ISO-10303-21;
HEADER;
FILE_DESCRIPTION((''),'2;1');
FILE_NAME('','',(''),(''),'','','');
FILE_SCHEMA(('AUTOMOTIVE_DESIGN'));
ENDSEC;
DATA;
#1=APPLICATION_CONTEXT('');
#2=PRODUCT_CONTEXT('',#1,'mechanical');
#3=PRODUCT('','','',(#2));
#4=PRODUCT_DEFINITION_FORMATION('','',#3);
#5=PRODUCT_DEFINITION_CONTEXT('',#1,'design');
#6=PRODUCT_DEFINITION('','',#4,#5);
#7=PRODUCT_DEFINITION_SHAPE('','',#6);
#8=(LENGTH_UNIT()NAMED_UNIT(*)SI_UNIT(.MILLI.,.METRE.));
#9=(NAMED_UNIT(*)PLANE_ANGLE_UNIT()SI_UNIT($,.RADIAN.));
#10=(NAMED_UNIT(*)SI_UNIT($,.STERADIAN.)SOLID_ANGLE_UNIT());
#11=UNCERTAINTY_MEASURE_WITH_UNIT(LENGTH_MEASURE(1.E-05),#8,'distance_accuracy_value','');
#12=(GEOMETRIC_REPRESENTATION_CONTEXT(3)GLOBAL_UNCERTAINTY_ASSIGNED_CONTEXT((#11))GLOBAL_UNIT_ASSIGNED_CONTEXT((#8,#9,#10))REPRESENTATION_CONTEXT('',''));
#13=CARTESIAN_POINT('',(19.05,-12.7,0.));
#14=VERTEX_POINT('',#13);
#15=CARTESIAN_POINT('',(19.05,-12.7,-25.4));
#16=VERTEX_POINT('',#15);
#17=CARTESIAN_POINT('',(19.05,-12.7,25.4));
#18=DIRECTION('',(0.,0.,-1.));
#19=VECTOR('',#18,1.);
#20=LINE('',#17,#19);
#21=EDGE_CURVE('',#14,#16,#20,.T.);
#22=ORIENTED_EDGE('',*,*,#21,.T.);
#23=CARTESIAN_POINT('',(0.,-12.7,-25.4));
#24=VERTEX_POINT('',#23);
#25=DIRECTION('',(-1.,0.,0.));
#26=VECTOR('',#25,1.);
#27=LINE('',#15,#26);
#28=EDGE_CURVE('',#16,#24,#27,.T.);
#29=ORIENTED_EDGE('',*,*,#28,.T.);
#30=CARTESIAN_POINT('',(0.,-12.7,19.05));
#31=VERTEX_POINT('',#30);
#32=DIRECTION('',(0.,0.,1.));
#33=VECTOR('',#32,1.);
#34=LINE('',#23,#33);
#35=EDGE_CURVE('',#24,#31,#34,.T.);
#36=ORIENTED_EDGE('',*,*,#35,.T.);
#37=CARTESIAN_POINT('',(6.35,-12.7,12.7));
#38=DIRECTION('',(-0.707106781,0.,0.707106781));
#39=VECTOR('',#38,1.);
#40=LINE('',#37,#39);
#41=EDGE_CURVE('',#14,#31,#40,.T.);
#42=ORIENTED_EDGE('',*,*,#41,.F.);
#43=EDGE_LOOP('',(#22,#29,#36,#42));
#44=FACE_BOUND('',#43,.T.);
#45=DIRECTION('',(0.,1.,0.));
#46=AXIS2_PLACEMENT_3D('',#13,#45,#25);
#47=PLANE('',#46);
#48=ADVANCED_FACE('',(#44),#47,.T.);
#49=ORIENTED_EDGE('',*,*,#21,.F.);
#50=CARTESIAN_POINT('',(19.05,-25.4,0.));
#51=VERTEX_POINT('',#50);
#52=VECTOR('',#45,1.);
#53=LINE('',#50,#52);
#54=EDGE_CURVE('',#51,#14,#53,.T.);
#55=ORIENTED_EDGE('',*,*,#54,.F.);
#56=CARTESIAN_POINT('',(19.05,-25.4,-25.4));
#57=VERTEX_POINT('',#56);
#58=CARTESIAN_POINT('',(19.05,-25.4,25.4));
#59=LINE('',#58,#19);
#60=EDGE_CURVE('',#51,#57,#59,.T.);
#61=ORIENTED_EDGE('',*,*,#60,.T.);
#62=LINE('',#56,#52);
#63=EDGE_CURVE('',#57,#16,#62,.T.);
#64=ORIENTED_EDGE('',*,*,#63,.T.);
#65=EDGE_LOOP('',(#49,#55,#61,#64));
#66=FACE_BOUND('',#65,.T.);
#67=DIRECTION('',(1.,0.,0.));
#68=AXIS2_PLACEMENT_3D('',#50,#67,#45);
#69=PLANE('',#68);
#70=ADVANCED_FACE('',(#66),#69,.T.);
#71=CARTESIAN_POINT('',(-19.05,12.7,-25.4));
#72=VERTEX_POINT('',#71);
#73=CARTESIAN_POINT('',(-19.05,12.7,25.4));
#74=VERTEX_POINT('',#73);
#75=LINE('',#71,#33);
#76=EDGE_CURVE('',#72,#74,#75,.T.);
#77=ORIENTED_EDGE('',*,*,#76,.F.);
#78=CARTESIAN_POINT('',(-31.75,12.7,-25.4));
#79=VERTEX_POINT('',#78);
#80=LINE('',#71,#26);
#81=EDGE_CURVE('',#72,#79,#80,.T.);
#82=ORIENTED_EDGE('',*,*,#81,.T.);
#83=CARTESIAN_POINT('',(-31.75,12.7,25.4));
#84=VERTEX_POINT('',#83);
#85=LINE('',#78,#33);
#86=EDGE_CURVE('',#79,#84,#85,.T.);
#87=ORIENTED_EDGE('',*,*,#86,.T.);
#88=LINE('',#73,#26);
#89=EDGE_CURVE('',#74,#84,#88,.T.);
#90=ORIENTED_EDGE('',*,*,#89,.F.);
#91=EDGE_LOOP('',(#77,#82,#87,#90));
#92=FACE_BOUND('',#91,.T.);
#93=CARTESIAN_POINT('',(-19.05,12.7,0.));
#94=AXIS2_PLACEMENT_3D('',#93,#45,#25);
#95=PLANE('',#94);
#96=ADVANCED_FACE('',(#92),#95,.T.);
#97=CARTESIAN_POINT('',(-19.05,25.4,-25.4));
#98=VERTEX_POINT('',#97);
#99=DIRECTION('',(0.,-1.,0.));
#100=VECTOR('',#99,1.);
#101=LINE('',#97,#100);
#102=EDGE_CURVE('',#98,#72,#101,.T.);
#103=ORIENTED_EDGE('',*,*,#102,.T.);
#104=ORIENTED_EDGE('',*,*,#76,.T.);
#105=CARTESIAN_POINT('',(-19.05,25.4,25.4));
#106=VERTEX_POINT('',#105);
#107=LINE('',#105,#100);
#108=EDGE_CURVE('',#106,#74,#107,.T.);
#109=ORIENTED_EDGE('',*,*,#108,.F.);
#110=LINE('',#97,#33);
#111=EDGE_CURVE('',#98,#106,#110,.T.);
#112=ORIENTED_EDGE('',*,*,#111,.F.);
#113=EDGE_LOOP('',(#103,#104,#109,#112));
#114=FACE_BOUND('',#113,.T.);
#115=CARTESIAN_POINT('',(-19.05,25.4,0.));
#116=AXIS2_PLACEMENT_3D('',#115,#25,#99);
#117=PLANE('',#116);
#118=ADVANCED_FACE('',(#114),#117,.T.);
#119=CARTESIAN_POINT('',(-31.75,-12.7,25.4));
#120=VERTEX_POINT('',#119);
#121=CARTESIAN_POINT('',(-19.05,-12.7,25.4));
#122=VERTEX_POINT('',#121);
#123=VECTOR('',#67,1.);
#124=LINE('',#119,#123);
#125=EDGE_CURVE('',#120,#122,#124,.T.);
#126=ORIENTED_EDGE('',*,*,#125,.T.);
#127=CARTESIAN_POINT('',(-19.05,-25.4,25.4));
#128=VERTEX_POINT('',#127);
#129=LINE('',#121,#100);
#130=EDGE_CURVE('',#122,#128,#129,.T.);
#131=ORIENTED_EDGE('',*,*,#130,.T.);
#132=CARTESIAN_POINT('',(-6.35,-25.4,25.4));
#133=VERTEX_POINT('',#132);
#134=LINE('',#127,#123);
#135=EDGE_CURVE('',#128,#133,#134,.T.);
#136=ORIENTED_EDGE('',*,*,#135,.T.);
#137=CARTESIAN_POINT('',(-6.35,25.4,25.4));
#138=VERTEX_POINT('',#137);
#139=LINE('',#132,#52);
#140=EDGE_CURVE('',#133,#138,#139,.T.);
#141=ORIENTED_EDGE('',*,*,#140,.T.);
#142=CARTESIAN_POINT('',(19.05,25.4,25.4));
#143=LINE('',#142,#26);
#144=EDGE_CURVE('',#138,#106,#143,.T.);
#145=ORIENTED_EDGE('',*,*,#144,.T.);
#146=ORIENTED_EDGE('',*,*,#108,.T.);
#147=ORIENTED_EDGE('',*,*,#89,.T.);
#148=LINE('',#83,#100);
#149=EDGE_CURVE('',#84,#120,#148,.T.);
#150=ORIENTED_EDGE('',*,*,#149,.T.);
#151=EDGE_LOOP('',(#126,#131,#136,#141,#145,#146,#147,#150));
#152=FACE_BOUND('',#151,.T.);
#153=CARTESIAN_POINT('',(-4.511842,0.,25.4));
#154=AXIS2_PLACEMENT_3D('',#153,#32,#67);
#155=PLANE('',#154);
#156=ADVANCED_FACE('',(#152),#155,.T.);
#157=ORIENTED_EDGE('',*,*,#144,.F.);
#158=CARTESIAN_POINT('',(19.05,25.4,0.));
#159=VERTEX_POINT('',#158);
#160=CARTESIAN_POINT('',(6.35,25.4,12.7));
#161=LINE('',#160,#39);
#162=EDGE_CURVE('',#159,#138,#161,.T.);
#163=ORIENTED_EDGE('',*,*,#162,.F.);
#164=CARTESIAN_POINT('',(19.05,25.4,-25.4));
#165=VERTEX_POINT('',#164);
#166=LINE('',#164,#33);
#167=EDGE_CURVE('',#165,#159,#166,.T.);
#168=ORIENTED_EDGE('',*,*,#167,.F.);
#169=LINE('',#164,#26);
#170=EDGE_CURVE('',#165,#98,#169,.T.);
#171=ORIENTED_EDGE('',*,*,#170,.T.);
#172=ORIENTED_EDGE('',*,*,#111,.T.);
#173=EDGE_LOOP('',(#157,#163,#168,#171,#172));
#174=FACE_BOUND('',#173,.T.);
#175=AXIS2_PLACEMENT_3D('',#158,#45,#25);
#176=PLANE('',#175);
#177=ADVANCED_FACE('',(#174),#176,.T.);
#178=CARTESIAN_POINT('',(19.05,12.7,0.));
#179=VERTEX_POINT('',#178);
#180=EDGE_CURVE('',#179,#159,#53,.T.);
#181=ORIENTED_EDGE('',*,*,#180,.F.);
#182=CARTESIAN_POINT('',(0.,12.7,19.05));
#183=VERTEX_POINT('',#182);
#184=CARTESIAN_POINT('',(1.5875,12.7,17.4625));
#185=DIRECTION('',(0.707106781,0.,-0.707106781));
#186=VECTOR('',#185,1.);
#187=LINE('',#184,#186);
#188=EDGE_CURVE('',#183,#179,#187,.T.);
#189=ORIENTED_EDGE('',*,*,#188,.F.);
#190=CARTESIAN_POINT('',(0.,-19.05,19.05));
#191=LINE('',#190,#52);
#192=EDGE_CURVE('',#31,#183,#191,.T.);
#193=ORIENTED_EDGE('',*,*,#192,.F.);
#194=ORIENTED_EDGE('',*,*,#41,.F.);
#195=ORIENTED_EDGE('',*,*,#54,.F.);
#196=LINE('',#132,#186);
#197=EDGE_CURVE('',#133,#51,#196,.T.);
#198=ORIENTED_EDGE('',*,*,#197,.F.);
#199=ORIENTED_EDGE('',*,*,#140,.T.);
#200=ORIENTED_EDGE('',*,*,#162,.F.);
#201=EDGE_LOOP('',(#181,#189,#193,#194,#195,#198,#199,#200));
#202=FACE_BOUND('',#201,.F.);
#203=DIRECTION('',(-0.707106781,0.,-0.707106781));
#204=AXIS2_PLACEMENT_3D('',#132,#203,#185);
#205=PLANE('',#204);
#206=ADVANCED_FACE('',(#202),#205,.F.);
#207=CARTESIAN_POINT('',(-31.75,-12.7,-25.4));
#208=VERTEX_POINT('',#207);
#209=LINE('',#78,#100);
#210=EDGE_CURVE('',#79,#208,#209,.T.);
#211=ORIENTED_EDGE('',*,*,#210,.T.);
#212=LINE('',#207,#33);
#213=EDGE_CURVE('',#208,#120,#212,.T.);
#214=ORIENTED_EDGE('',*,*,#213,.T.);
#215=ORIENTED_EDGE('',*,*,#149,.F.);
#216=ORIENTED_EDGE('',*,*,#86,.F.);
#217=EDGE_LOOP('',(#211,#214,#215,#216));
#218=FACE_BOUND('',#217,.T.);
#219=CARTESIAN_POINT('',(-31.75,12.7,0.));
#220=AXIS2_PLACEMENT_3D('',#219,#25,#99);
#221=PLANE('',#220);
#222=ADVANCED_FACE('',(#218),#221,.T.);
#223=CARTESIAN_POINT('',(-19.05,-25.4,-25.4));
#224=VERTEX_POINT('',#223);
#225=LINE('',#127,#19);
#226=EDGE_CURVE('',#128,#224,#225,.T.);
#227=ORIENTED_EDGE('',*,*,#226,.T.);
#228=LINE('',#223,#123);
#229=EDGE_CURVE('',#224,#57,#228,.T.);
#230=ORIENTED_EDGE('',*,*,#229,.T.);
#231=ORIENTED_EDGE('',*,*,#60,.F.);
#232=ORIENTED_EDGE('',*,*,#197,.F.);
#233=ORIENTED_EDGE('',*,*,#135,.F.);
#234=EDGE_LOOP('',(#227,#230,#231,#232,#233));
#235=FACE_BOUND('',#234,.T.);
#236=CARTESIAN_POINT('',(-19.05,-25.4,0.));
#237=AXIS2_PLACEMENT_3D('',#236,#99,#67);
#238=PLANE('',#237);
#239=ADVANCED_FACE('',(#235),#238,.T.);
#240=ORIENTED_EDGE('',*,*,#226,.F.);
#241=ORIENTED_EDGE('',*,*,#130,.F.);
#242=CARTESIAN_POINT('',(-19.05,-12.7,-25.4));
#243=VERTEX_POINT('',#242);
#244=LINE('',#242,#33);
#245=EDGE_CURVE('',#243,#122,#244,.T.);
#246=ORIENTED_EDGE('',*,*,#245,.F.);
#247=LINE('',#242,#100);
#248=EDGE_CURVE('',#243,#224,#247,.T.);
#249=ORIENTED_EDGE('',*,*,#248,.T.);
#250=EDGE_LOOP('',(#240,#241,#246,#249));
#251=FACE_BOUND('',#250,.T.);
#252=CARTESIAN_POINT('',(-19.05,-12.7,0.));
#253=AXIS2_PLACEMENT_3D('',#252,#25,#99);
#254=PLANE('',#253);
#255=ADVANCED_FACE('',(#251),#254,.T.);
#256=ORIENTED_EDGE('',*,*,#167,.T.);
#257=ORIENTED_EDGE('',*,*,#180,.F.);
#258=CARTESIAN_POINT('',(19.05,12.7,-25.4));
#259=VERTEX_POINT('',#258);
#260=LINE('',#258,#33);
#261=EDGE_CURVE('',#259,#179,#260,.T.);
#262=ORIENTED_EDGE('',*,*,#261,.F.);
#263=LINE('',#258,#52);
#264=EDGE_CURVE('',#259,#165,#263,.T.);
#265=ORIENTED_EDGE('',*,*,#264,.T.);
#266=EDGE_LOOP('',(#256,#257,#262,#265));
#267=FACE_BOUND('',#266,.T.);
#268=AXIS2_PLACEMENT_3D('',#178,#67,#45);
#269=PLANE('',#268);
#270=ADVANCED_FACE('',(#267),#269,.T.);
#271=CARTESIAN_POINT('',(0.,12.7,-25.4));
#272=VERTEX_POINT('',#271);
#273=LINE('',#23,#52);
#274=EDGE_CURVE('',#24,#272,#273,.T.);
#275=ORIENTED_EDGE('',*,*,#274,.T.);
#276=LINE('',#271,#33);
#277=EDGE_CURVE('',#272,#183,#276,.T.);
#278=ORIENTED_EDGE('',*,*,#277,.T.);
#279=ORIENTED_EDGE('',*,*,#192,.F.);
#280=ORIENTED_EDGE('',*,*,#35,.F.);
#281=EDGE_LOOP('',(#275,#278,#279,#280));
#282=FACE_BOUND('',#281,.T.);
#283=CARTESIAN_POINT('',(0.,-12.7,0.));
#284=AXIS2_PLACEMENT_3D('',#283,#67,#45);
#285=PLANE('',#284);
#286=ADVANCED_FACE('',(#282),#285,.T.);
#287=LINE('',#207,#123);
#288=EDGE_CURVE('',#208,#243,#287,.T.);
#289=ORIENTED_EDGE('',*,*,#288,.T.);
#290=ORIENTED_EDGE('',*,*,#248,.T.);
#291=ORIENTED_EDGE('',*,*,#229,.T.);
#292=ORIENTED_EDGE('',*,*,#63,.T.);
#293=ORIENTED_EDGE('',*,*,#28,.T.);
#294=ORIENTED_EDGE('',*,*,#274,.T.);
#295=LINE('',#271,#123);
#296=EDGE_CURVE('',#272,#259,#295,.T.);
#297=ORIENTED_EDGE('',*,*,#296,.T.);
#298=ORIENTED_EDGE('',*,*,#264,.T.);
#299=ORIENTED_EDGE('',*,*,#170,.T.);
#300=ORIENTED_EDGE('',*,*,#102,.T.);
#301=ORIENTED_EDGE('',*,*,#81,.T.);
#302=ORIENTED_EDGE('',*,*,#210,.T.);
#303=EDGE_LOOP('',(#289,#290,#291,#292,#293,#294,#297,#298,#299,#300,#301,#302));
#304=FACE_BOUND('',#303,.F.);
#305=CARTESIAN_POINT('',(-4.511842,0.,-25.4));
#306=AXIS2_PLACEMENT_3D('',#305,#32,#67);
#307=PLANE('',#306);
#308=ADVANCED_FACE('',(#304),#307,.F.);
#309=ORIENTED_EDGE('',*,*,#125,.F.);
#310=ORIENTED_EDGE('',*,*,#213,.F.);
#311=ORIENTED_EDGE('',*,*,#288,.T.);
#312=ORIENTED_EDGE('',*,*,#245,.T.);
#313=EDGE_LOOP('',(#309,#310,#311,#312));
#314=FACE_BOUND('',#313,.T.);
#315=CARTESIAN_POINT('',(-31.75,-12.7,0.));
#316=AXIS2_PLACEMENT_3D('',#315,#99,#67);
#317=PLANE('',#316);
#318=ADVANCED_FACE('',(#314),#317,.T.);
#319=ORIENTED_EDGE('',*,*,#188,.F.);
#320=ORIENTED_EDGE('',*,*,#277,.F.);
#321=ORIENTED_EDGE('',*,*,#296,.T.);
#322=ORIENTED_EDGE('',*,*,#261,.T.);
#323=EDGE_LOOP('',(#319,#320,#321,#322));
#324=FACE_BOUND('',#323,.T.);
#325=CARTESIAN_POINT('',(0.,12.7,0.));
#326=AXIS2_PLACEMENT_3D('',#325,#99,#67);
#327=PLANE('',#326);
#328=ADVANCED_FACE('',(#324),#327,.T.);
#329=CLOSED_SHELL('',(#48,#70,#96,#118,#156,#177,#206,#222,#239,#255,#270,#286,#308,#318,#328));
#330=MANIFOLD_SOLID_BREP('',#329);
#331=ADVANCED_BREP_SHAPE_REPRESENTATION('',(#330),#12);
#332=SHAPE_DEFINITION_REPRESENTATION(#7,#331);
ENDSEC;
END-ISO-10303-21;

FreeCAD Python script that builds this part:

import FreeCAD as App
import Part
import Sketcher
Q = App.Units.Quantity

doc = App.newDocument("Part")
body = doc.addObject("PartDesign::Body", "Body")

# Sketch on XY plane
sketch1 = body.newObject("Sketcher::SketchObject", "Sketch")
sketch1.AttachmentSupport = (doc.getObject("XY_Plane"), [""])
sketch1.MapMode = "FlatFace"
sketch1.addGeometry(Part.LineSegment(App.Vector(19, -13, 0), App.Vector(0, -13, 0)), False)
sketch1.addGeometry(Part.LineSegment(App.Vector(0, -13, 0), App.Vector(0, 13, 0)), False)
sketch1.addGeometry(Part.LineSegment(App.Vector(0, 13, 0), App.Vector(19, 13, 0)), False)
sketch1.addGeometry(Part.LineSegment(App.Vector(19, 13, 0), App.Vector(19, 25, 0)), False)
sketch1.addGeometry(Part.LineSegment(App.Vector(19, 25, 0), App.Vector(-19, 25, 0)), False)
sketch1.addGeometry(Part.LineSegment(App.Vector(-19, 25, 0), App.Vector(-19, 13, 0)), False)
sketch1.addGeometry(Part.LineSegment(App.Vector(-19, 13, 0), App.Vector(-32, 13, 0)), False)
sketch1.addGeometry(Part.LineSegment(App.Vector(-32, 13, 0), App.Vector(-32, -13, 0)), False)
sketch1.addGeometry(Part.LineSegment(App.Vector(-32, -13, 0), App.Vector(-19, -13, 0)), False)
sketch1.addGeometry(Part.LineSegment(App.Vector(-19, -13, 0), App.Vector(-19, -25, 0)), False)
sketch1.addGeometry(Part.LineSegment(App.Vector(-19, -25, 0), App.Vector(19, -25, 0)), False)
sketch1.addGeometry(Part.LineSegment(App.Vector(19, -25, 0), App.Vector(19, -13, 0)), False)
sketch1.addConstraint(Sketcher.Constraint("Coincident", 0, 2, 1, 1))
sketch1.addConstraint(Sketcher.Constraint("Coincident", 1, 2, 2, 1))
sketch1.addConstraint(Sketcher.Constraint("Coincident", 2, 2, 3, 1))
sketch1.addConstraint(Sketcher.Constraint("Coincident", 3, 2, 4, 1))
sketch1.addConstraint(Sketcher.Constraint("Coincident", 4, 2, 5, 1))
sketch1.addConstraint(Sketcher.Constraint("Coincident", 5, 2, 6, 1))
sketch1.addConstraint(Sketcher.Constraint("Coincident", 6, 2, 7, 1))
sketch1.addConstraint(Sketcher.Constraint("Coincident", 7, 2, 8, 1))
sketch1.addConstraint(Sketcher.Constraint("Coincident", 8, 2, 9, 1))
sketch1.addConstraint(Sketcher.Constraint("Coincident", 9, 2, 10, 1))
sketch1.addConstraint(Sketcher.Constraint("Coincident", 10, 2, 11, 1))
sketch1.addConstraint(Sketcher.Constraint("Coincident", 11, 2, 0, 1))
sketch1.addConstraint(Sketcher.Constraint("Horizontal", 0))
sketch1.addConstraint(Sketcher.Constraint("Vertical", 1))
sketch1.addConstraint(Sketcher.Constraint("Horizontal", 2))
sketch1.addConstraint(Sketcher.Constraint("Vertical", 3))
sketch1.addConstraint(Sketcher.Constraint("Horizontal", 4))
sketch1.addConstraint(Sketcher.Constraint("Vertical", 5))
sketch1.addConstraint(Sketcher.Constraint("Horizontal", 6))
sketch1.addConstraint(Sketcher.Constraint("Vertical", 7))
sketch1.addConstraint(Sketcher.Constraint("Horizontal", 8))
sketch1.addConstraint(Sketcher.Constraint("Vertical", 9))
sketch1.addConstraint(Sketcher.Constraint("Horizontal", 10))
sketch1.addConstraint(Sketcher.Constraint("Vertical", 11))
sketch1.addConstraint(Sketcher.Constraint("Symmetric", 0, 2, 1, 2, -1, 1))
sketch1.addConstraint(Sketcher.Constraint("Symmetric", 2, 2, 8, 2, -1, 1))
sketch1.addConstraint(Sketcher.Constraint("Symmetric", 4, 2, 10, 2, -1, 1))
sketch1.addConstraint(Sketcher.Constraint("Symmetric", 2, 2, 5, 2, -2))
sketch1.addConstraint(Sketcher.Constraint("Equal", 8, 3))
sketch1.addConstraint(Sketcher.Constraint("DistanceY", 1, 1, 1, 2, Q("1 in")))
sketch1.addConstraint(Sketcher.Constraint("DistanceX", 4, 2, 4, 1, Q("1.5 in")))
sketch1.addConstraint(Sketcher.Constraint("DistanceX", 6, 2, 6, 1, Q("0.5 in")))
pad1 = body.newObject("PartDesign::Pad", "Pad")
pad1.Profile = sketch1
pad1.Length = Q("2 in")
pad1.Midplane = True

# Sketch on XZ plane
sketch2 = body.newObject("Sketcher::SketchObject", "Sketch001")
sketch2.AttachmentSupport = (doc.getObject("XZ_Plane"), [""])
sketch2.MapMode = "FlatFace"
sketch2.AttachmentOffset = App.Placement(App.Vector(0, 0, 1 * 25.4), App.Rotation())
sketch2.addGeometry(Part.LineSegment(App.Vector(19, 0, 0), App.Vector(19, 25, 0)), False)
sketch2.addGeometry(Part.LineSegment(App.Vector(19, 25, 0), App.Vector(-6, 25, 0)), False)
sketch2.addGeometry(Part.LineSegment(App.Vector(-6, 25, 0), App.Vector(19, 0, 0)), False)
sketch2.addConstraint(Sketcher.Constraint("Coincident", 0, 2, 1, 1))
sketch2.addConstraint(Sketcher.Constraint("Coincident", 1, 2, 2, 1))
sketch2.addConstraint(Sketcher.Constraint("Coincident", 2, 2, 0, 1))
sketch2.addConstraint(Sketcher.Constraint("Vertical", 0))
sketch2.addConstraint(Sketcher.Constraint("Horizontal", 1))
sketch2.addConstraint(Sketcher.Constraint("PointOnObject", 2, 2, -1))
sketch2.addConstraint(Sketcher.Constraint("Equal", 1, 0))
sketch2.addConstraint(Sketcher.Constraint("DistanceX", 1, 2, 1, 1, Q("1 in")))
sketch2.addConstraint(Sketcher.Constraint("DistanceX", -1, 1, 0, 2, Q("0.75 in")))
pocket1 = body.newObject("PartDesign::Pocket", "Pocket")
pocket1.Profile = sketch2
pocket1.Type = "ThroughAll"

doc.recompute()
